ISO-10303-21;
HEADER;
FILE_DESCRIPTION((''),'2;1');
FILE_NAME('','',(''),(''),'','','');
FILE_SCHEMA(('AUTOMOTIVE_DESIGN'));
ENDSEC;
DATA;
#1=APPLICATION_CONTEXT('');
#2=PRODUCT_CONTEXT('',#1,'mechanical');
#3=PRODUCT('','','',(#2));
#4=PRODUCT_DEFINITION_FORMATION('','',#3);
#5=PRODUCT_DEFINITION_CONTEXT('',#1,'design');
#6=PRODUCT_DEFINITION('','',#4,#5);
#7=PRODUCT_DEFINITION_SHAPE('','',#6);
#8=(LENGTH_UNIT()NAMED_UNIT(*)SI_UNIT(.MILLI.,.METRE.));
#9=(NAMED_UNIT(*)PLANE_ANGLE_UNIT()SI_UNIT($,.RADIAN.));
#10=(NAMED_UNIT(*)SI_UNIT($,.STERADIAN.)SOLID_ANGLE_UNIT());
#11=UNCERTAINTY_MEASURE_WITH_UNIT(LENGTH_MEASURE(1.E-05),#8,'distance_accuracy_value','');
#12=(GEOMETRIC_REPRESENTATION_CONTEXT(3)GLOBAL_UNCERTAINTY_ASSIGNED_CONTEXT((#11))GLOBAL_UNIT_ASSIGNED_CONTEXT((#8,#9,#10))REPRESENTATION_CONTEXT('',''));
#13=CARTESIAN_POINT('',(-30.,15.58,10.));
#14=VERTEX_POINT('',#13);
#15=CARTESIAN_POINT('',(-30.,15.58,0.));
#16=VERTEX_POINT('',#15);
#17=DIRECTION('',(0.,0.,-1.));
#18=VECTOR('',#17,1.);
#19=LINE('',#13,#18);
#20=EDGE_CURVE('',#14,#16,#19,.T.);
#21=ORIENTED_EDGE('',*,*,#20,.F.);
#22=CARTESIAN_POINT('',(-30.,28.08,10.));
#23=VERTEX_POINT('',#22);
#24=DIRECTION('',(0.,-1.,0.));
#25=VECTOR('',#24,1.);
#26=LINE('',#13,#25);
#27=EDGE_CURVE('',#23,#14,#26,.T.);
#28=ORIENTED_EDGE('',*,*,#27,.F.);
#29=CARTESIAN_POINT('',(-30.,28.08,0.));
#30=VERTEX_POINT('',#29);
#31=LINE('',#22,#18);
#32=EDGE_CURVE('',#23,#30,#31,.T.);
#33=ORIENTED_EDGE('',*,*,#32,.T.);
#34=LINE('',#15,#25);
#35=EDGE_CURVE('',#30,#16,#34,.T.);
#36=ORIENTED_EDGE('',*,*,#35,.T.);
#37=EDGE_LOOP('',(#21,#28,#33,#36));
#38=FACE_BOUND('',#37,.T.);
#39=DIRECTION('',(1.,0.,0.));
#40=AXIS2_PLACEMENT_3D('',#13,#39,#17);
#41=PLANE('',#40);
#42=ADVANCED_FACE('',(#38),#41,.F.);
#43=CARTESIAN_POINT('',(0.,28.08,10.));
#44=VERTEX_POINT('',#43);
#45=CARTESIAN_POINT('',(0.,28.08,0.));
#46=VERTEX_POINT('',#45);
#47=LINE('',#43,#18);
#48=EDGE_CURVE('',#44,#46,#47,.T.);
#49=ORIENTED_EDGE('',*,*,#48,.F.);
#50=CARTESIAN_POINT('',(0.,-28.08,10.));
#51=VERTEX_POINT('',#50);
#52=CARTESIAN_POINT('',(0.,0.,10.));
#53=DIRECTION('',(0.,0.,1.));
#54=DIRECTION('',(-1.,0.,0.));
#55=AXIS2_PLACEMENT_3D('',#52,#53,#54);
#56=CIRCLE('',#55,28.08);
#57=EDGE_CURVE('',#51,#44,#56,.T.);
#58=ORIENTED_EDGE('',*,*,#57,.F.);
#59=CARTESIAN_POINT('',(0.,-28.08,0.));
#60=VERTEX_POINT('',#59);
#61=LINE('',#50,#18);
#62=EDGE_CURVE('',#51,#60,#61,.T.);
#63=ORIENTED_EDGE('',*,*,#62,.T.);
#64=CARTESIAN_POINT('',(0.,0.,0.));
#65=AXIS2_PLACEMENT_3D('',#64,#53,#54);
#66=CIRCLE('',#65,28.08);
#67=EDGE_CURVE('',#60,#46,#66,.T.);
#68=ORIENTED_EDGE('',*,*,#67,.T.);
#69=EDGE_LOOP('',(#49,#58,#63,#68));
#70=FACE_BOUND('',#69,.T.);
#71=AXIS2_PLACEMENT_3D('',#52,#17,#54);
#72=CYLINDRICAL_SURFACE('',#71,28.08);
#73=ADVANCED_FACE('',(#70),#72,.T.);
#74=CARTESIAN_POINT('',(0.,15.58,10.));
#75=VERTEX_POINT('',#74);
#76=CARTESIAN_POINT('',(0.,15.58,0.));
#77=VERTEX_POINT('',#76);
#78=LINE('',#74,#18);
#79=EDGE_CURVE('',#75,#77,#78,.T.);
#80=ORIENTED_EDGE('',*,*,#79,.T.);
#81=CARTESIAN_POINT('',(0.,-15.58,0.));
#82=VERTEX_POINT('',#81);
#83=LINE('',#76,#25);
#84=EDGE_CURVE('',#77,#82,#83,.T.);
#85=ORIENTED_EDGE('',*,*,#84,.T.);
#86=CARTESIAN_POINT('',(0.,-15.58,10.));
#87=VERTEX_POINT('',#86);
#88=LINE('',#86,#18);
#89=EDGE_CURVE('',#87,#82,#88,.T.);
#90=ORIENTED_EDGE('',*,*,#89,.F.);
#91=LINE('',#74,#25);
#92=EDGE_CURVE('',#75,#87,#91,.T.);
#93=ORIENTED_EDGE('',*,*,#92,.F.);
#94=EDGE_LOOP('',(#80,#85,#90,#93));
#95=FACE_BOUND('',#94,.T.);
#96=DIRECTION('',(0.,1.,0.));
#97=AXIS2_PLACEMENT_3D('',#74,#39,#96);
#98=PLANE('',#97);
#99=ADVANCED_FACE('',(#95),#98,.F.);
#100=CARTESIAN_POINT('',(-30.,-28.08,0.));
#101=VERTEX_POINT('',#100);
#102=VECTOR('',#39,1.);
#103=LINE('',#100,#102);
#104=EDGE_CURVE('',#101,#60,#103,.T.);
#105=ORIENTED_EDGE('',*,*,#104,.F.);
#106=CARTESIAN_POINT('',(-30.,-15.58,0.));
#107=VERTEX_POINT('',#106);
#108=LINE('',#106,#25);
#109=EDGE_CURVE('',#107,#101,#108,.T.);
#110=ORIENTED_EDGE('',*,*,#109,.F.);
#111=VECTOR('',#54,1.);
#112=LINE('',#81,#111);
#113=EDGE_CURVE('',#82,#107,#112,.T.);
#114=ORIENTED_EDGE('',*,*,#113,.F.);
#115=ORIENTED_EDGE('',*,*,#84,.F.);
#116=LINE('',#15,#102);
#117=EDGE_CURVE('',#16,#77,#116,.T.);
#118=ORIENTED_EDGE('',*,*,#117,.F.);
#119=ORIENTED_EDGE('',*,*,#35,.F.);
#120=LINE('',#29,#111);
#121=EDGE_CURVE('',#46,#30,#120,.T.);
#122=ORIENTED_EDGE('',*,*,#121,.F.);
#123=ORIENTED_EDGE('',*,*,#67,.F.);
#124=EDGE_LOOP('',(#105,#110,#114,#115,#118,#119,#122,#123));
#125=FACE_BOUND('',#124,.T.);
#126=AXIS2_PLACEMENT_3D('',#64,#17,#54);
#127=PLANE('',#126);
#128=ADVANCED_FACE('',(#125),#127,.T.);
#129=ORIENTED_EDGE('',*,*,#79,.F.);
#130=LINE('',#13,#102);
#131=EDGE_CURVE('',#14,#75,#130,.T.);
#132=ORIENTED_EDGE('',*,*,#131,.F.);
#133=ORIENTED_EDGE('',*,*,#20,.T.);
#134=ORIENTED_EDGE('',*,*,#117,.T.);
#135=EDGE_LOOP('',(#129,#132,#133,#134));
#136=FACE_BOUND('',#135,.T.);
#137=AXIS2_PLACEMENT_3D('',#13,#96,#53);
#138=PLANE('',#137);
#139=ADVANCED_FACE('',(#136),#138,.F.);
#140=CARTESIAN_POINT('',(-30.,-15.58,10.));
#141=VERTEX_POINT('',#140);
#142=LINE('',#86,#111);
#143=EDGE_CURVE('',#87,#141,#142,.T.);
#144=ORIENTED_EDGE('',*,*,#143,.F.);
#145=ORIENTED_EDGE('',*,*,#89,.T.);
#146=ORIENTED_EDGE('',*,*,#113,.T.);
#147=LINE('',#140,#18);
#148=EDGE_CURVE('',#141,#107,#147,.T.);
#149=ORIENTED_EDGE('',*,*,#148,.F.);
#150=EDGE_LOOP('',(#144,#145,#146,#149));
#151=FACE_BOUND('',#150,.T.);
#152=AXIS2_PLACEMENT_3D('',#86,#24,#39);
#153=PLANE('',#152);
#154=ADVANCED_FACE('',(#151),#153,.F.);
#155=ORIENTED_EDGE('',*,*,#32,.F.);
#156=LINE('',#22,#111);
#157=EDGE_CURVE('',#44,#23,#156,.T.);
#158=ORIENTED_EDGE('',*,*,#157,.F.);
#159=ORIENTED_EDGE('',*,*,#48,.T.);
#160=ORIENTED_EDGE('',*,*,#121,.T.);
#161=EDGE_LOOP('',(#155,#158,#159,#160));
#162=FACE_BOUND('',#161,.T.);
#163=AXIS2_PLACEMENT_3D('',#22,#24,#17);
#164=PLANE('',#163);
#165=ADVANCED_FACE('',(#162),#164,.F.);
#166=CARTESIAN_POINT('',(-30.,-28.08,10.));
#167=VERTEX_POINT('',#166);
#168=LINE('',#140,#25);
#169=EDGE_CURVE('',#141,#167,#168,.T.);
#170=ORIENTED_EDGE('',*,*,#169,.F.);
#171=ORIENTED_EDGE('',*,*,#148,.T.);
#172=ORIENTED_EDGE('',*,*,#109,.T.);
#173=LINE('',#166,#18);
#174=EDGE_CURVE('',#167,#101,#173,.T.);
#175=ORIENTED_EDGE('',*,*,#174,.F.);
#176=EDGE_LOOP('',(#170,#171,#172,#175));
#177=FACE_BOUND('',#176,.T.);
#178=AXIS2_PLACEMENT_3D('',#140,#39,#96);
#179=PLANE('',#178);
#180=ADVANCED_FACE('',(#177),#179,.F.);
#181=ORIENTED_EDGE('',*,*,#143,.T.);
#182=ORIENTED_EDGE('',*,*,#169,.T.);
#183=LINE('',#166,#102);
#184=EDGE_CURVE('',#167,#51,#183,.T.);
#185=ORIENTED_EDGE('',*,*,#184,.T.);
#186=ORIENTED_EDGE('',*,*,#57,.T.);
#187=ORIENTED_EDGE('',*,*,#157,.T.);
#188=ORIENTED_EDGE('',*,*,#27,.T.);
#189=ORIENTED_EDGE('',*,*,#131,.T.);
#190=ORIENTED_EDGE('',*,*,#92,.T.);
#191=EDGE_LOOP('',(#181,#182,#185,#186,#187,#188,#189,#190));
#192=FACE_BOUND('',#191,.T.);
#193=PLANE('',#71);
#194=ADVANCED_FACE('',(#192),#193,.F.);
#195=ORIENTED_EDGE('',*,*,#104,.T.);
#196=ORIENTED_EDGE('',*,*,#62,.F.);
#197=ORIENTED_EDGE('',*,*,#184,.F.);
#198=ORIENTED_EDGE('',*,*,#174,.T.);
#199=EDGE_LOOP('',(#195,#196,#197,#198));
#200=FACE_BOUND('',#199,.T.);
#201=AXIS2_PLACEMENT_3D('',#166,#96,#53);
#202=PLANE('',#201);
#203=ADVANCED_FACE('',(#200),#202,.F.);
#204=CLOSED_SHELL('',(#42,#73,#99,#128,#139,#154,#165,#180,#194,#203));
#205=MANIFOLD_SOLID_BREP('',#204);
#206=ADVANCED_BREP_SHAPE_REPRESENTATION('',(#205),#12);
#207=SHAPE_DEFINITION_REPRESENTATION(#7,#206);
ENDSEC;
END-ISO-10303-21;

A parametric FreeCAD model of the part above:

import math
import FreeCAD as App
import Part
import Sketcher

doc = App.newDocument("Part")
body = doc.addObject("PartDesign::Body", "Body")

sketch1 = doc.addObject("Sketcher::SketchObject", "Sketch")
body.addObject(sketch1)
sketch1.AttachmentSupport = (doc.XY_Plane, [""])
sketch1.MapMode = "FlatFace"
sketch1.addGeometry([
    Part.LineSegment(App.Vector(-30, 16, 0), App.Vector(0, 16, 0)),
    Part.LineSegment(App.Vector(0, 16, 0), App.Vector(0, -16, 0)),
    Part.LineSegment(App.Vector(0, -16, 0), App.Vector(-30, -16, 0)),
    Part.LineSegment(App.Vector(-30, -16, 0), App.Vector(-30, -28, 0)),
    Part.LineSegment(App.Vector(-30, -28, 0), App.Vector(0, -28, 0)),
    Part.ArcOfCircle(Part.Circle(App.Vector(0, 0, 0), App.Vector(0, 0, 1), 28), math.radians(-90), math.radians(90)),
    Part.LineSegment(App.Vector(0, 28, 0), App.Vector(-30, 28, 0)),
    Part.LineSegment(App.Vector(-30, 28, 0), App.Vector(-30, 16, 0)),
], False)
sketch1.addConstraint([
    Sketcher.Constraint("Coincident", 0, 2, 1, 1),
    Sketcher.Constraint("Coincident", 1, 2, 2, 1),
    Sketcher.Constraint("Coincident", 2, 2, 3, 1),
    Sketcher.Constraint("Coincident", 3, 2, 4, 1),
    Sketcher.Constraint("Tangent", 4, 2, 5, 1),
    Sketcher.Constraint("Tangent", 5, 2, 6, 1),
    Sketcher.Constraint("Coincident", 6, 2, 7, 1),
    Sketcher.Constraint("Coincident", 7, 2, 0, 1),
    Sketcher.Constraint("Horizontal", 0),
    Sketcher.Constraint("Vertical", 1),
    Sketcher.Constraint("Horizontal", 2),
    Sketcher.Constraint("Vertical", 3),
    Sketcher.Constraint("Horizontal", 4),
    Sketcher.Constraint("Horizontal", 6),
    Sketcher.Constraint("Vertical", 7),
    Sketcher.Constraint("Coincident", 5, 3, -1, 1),
    Sketcher.Constraint("Symmetric", 0, 2, 1, 2, -1, 1),
    Sketcher.Constraint("Vertical", 3, 2, 6, 2),
    Sketcher.Constraint("DistanceX", 0, 1, 0, 2, 30.0),
    Sketcher.Constraint("Radius", 5, 28.08),
    Sketcher.Constraint("DistanceY", 3, 2, 3, 1, 12.5),
])
pad1 = doc.addObject("PartDesign::Pad", "Pad")
body.addObject(pad1)
pad1.Profile = sketch1
pad1.Length = 10

doc.recompute()
